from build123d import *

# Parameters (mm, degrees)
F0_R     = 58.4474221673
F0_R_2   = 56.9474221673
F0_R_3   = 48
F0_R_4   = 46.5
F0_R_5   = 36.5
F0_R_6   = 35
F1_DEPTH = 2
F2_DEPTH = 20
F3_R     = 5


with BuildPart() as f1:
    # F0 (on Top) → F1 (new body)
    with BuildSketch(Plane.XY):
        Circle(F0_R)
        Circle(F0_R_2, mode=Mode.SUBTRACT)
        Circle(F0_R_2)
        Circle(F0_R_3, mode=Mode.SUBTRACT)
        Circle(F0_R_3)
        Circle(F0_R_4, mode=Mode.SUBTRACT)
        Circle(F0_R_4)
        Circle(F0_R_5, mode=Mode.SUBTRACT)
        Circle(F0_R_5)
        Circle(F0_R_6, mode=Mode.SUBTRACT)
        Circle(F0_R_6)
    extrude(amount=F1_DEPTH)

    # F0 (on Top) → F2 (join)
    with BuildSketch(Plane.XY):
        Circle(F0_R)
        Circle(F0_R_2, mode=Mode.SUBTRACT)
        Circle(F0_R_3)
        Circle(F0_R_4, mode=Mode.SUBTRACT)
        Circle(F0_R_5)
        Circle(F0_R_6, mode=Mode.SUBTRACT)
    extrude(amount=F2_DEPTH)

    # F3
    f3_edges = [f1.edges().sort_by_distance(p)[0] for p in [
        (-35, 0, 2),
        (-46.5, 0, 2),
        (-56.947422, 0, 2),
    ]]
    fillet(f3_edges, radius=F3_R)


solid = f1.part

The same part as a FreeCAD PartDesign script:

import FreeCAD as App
import Part
import Sketcher
from FreeCAD import Vector
Q = App.Units.Quantity


def edges_at(feature, points):
    """Names of the edges that pass closest to the given points."""
    edges = feature.Shape.Edges
    near = lambda p: min(range(len(edges)), key=lambda i: edges[i].distToShape(Part.Vertex(*p))[0])
    return sorted({f"Edge{near(p) + 1}" for p in points})

doc = App.newDocument("Part")
body = doc.addObject("PartDesign::Body", "Body")

sketch1 = body.newObject("Sketcher::SketchObject", "Sketch")
sketch1.AttachmentSupport = (doc.getObject("XY_Plane"), [""])
sketch1.MapMode = "FlatFace"
sketch1.addGeometry(Part.Circle(Vector(0, 0, 0), Vector(0, 0, 1), 58), False)
sketch1.addConstraint(Sketcher.Constraint("Coincident", 0, 3, -1, 1))
sketch1.addConstraint(Sketcher.Constraint("Diameter", 0, Q("116.894844 mm")))
pad1 = body.newObject("PartDesign::Pad", "Pad")
pad1.Profile = sketch1
pad1.Length = 2

sketch2 = body.newObject("Sketcher::SketchObject", "Sketch001")
sketch2.AttachmentSupport = (doc.getObject("XY_Plane"), [""])
sketch2.MapMode = "FlatFace"
sketch2.addGeometry(Part.Circle(Vector(0, 0, 0), Vector(0, 0, 1), 58), False)
sketch2.addGeometry(Part.Circle(Vector(0, 0, 0), Vector(0, 0, 1), 57), False)
sketch2.addGeometry(Part.Circle(Vector(0, 0, 0), Vector(0, 0, 1), 48), False)
sketch2.addGeometry(Part.Circle(Vector(0, 0, 0), Vector(0, 0, 1), 46), False)
sketch2.addGeometry(Part.Circle(Vector(0, 0, 0), Vector(0, 0, 1), 36), False)
sketch2.addGeometry(Part.Circle(Vector(0, 0, 0), Vector(0, 0, 1), 35), False)
sketch2.addConstraint(Sketcher.Constraint("Coincident", 0, 3, -1, 1))
sketch2.addConstraint(Sketcher.Constraint("Coincident", 1, 3, -1, 1))
sketch2.addConstraint(Sketcher.Constraint("Coincident", 2, 3, -1, 1))
sketch2.addConstraint(Sketcher.Constraint("Coincident", 3, 3, -1, 1))
sketch2.addConstraint(Sketcher.Constraint("Coincident", 4, 3, -1, 1))
sketch2.addConstraint(Sketcher.Constraint("Coincident", 5, 3, -1, 1))
sketch2.addConstraint(Sketcher.Constraint("Diameter", 2, Q("96 mm")))
sketch2.addConstraint(Sketcher.Constraint("Diameter", 3, Q("93 mm")))
sketch2.addConstraint(Sketcher.Constraint("Diameter", 4, Q("73 mm")))
sketch2.addConstraint(Sketcher.Constraint("Diameter", 5, Q("70 mm")))
sketch2.addConstraint(Sketcher.Constraint("Diameter", 0, Q("116.894844 mm")))
sketch2.addConstraint(Sketcher.Constraint("Diameter", 1, Q("113.894844 mm")))
pad2 = body.newObject("PartDesign::Pad", "Pad001")
pad2.Profile = sketch2
pad2.Length = 20
doc.recompute()

fillet = body.newObject("PartDesign::Fillet", "Fillet")
fillet.Base = (pad2, edges_at(pad2, [(-35, 0, 2), (-46.5, 0, 2), (-56.947, 0, 2)]))
fillet.Radius = 5

doc.recompute()
